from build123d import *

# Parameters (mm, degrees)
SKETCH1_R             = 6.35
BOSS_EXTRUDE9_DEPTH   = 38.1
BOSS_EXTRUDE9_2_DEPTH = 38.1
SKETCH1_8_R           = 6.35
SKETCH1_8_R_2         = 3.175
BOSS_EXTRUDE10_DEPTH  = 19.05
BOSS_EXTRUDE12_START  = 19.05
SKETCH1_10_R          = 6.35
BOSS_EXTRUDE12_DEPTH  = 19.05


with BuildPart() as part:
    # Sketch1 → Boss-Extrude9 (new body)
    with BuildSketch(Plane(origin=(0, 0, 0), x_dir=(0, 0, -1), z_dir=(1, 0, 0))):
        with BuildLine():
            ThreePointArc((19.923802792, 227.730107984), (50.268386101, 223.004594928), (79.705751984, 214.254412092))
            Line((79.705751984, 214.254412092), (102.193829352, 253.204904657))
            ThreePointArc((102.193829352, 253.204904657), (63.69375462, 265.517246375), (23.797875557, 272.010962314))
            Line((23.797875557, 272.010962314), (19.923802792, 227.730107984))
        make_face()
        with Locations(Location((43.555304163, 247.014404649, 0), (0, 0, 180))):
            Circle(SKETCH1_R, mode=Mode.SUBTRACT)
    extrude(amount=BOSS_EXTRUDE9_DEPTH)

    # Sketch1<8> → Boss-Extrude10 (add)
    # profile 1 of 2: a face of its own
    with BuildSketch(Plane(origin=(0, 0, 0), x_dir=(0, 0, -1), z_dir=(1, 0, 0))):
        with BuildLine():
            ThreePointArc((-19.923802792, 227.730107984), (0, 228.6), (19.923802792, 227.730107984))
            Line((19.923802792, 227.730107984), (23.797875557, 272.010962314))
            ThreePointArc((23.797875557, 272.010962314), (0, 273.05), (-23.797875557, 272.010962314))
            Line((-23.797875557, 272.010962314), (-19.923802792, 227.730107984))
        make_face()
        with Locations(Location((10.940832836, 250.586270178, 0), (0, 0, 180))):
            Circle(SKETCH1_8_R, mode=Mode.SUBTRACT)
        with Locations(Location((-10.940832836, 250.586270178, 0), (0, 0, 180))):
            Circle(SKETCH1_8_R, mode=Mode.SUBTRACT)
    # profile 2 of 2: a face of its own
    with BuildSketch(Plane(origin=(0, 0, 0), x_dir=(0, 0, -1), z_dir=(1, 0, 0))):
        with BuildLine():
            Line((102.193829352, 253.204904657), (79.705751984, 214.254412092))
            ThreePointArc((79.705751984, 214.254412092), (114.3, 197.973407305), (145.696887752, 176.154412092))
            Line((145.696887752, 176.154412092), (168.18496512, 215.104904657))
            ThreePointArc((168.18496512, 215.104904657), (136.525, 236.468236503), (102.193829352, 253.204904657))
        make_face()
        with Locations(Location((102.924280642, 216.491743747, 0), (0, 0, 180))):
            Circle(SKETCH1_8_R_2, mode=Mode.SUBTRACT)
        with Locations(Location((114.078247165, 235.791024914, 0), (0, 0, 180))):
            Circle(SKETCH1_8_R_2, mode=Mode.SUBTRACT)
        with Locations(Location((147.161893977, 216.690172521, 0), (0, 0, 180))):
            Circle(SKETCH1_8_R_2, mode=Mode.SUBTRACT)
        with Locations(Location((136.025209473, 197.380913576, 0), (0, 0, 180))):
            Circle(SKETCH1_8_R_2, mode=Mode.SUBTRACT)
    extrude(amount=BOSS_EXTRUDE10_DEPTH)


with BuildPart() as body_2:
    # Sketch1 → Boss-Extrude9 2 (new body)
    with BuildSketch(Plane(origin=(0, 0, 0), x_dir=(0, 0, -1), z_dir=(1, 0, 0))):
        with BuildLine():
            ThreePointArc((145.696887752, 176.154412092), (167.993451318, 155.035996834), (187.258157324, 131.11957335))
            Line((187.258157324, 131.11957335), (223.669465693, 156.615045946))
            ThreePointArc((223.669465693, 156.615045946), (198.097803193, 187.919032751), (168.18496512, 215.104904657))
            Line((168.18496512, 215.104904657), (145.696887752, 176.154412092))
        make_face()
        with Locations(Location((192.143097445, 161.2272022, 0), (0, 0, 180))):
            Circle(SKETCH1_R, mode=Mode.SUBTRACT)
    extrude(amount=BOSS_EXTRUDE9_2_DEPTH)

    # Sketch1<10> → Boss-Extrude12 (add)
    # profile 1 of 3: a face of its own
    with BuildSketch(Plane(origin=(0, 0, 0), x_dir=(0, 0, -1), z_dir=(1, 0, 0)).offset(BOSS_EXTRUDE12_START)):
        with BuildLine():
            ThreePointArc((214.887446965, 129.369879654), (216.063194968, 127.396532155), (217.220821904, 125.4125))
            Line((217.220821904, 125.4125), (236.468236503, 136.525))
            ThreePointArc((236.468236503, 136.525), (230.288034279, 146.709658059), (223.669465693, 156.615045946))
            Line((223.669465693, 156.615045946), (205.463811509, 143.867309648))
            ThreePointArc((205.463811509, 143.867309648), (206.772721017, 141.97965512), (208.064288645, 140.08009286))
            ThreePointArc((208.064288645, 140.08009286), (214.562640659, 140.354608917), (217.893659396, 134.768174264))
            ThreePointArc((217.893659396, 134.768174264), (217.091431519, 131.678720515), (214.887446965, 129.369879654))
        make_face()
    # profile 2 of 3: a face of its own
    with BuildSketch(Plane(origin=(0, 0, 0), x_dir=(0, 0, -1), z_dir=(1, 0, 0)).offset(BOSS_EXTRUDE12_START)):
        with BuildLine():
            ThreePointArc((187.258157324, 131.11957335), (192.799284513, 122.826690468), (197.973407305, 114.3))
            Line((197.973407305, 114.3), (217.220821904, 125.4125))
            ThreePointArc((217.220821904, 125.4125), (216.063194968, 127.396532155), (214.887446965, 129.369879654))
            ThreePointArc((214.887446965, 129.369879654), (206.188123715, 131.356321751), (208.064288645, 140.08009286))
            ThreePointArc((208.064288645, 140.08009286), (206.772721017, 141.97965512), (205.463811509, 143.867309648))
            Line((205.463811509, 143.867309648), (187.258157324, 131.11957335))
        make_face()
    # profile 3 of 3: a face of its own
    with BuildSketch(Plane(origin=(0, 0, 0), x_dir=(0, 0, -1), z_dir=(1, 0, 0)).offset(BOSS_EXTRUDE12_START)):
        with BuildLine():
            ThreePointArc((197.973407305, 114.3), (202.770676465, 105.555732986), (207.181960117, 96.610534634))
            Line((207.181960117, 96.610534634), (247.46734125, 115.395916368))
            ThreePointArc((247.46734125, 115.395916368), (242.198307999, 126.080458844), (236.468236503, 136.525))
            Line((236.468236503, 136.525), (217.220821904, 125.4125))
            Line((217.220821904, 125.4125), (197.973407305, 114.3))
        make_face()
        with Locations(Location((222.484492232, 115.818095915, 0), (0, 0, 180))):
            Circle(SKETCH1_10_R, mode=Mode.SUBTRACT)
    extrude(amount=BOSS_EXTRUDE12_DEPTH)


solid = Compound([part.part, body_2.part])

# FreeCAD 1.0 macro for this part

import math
import FreeCAD as App
import Part
import Sketcher

V = App.Vector
Q = App.Units.Quantity

doc = App.newDocument("Part")
body = doc.addObject("PartDesign::Body", "Body")

# Sketch on YZ plane
sketch1 = body.newObject("Sketcher::SketchObject", "Sketch")
sketch1.AttachmentSupport = (doc.getObject("YZ_Plane"), [""])
sketch1.MapMode = "FlatFace"
sketch1.addGeometry([
    Part.ArcOfCircle(Part.Circle(V(0, 0, 0), V(0, 0, 1), 228.6), math.radians(-20.405932), math.radians(-5)),  # 0
    Part.LineSegment(V(214.254412, -79.705752, 0), V(253.204905, -102.193829, 0)),  # 1
    Part.ArcOfCircle(Part.Circle(V(0, 0, 0), V(0, 0, 1), 273.05), math.radians(-21.979067), math.radians(-5)),  # 2
    Part.LineSegment(V(272.010962, -23.797876, 0), V(227.730108, -19.923803, 0)),  # 3
    Part.Circle(V(247.014405, -43.555304, 0), V(0, 0, 1), 6.35),  # 4
], False)
sketch1.addConstraint([
    Sketcher.Constraint("Coincident", 0, 1, 1, 1),
    Sketcher.Constraint("Coincident", 1, 2, 2, 1),
    Sketcher.Constraint("Coincident", 2, 2, 3, 1),
    Sketcher.Constraint("Coincident", 3, 2, 0, 2),
    Sketcher.Constraint("Coincident", 0, 3, -1, 1),
    Sketcher.Constraint("Coincident", 2, 3, -1, 1),
    Sketcher.Constraint("Radius", 0, Q("9 in")),
    Sketcher.Constraint("Diameter", 4, Q("0.5 in")),
    Sketcher.Constraint("Radius", 2, Q("10.75 in")),
    Sketcher.Constraint("Angle", 1, Q("-30 deg")),
    Sketcher.Constraint("Angle", 3, Q("175 deg")),
    Sketcher.Constraint("DistanceX", 4, 3, 1, 2, Q("6.1905 mm")),
    Sketcher.Constraint("DistanceY", 4, 3, 3, 2, Q("23.631501 mm")),
    Sketcher.Constraint("DistanceY", 0, 1, -1, 1, Q("79.705752 mm")),
    Sketcher.Constraint("DistanceY", 0, 1, 3, 2, Q("59.781949 mm")),
])
pad1 = body.newObject("PartDesign::Pad", "Pad")
pad1.Profile = sketch1
pad1.Length = Q("1.5 in")

# Sketch on YZ plane
sketch2 = body.newObject("Sketcher::SketchObject", "Sketch001")
sketch2.AttachmentSupport = (doc.getObject("YZ_Plane"), [""])
sketch2.MapMode = "FlatFace"
sketch2.addGeometry([
    Part.ArcOfCircle(Part.Circle(V(0, 0, 0), V(0, 0, 1), 228.6), math.radians(-5), math.radians(5)),  # 0
    Part.LineSegment(V(227.730108, -19.923803, 0), V(272.010962, -23.797876, 0)),  # 1
    Part.ArcOfCircle(Part.Circle(V(0, 0, 0), V(0, 0, 1), 273.05), math.radians(-5), math.radians(5)),  # 2
    Part.LineSegment(V(272.010962, 23.797876, 0), V(227.730108, 19.923803, 0)),  # 3
    Part.Circle(V(250.58627, 10.940833, 0), V(0, 0, 1), 6.35),  # 4
    Part.Circle(V(250.58627, -10.940833, 0), V(0, 0, 1), 6.35),  # 5
    Part.LineSegment(V(253.204905, -102.193829, 0), V(214.254412, -79.705752, 0)),  # 6
    Part.ArcOfCircle(Part.Circle(V(0, 0, 0), V(0, 0, 1), 228.6), math.radians(-39.594068), math.radians(-20.405932)),  # 7
    Part.LineSegment(V(176.154412, -145.696888, 0), V(215.104905, -168.184965, 0)),  # 8
    Part.ArcOfCircle(Part.Circle(V(0, 0, 0), V(0, 0, 1), 273.05), math.radians(-38.020933), math.radians(-21.979067)),  # 9
    Part.Circle(V(216.491744, -102.924281, 0), V(0, 0, 1), 3.175),  # 10
    Part.Circle(V(197.380914, -136.025209, 0), V(0, 0, 1), 3.175),  # 11
    Part.Circle(V(235.791025, -114.078247, 0), V(0, 0, 1), 3.175),  # 12
    Part.Circle(V(216.690173, -147.161894, 0), V(0, 0, 1), 3.175),  # 13
], False)
sketch2.addConstraint([
    Sketcher.Constraint("Coincident", 0, 1, 1, 1),
    Sketcher.Constraint("Coincident", 1, 2, 2, 1),
    Sketcher.Constraint("Coincident", 2, 2, 3, 1),
    Sketcher.Constraint("Coincident", 3, 2, 0, 2),
    Sketcher.Constraint("Coincident", 6, 2, 7, 2),
    Sketcher.Constraint("Coincident", 7, 1, 8, 1),
    Sketcher.Constraint("Coincident", 8, 2, 9, 1),
    Sketcher.Constraint("Coincident", 9, 2, 6, 1),
    Sketcher.Constraint("Coincident", 0, 3, -1, 1),
    Sketcher.Constraint("Coincident", 2, 3, -1, 1),
    Sketcher.Constraint("Coincident", 7, 3, -1, 1),
    Sketcher.Constraint("Coincident", 9, 3, -1, 1),
    Sketcher.Constraint("Equal", 4, 5),
    Sketcher.Constraint("Equal", 0, 7),
    Sketcher.Constraint("Equal", 2, 9),
    Sketcher.Constraint("Equal", 10, 11),
    Sketcher.Constraint("Equal", 11, 12),
    Sketcher.Constraint("Equal", 12, 13),
    Sketcher.Constraint("Symmetric", 4, 3, 5, 3, -1),
    Sketcher.Constraint("Parallel", 6, 8),
    Sketcher.Constraint("Vertical", 1, 2, 2, 2),
    Sketcher.Constraint("Vertical", 0, 1, 3, 2),
    Sketcher.Constraint("Equal", 6, 8),
    Sketcher.Constraint("Radius", 0, Q("9 in")),
    Sketcher.Constraint("Diameter", 4, Q("0.5 in")),
    Sketcher.Constraint("Diameter", 10, Q("0.25 in")),
    Sketcher.Constraint("Radius", 2, Q("10.75 in")),
    Sketcher.Constraint("Angle", 1, Q("-5 deg")),
    Sketcher.Constraint("Angle", 6, Q("150 deg")),
    Sketcher.Constraint("DistanceX", 7, 1, 6, 2, Q("1.5 in")),
    Sketcher.Constraint("DistanceX", 8, 2, 10, 3, Q("0.0546 in")),
    Sketcher.Constraint("DistanceX", 11, 3, 6, 2, Q("16.873499 mm")),
    Sketcher.Constraint("DistanceX", -1, 1, 4, 3, Q("250.58627 mm")),
    Sketcher.Constraint("DistanceY", 10, 3, -1, 1, Q("102.924281 mm")),
    Sketcher.Constraint("DistanceY", 11, 3, -1, 1, Q("136.025209 mm")),
    Sketcher.Constraint("DistanceX", 10, 3, 12, 3, Q("19.299281 mm")),
    Sketcher.Constraint("DistanceY", 12, 3, 4, 3, Q("125.01908 mm")),
    Sketcher.Constraint("DistanceX", 11, 3, 13, 3, Q("19.309259 mm")),
    Sketcher.Constraint("DistanceY", 13, 3, 5, 3, Q("136.221061 mm")),
    Sketcher.Constraint("DistanceY", 0, 1, 5, 3, Q("8.98297 mm")),
    Sketcher.Constraint("DistanceY", 1, 2, 4, 3, Q("34.738708 mm")),
])
pad2 = body.newObject("PartDesign::Pad", "Pad001")
pad2.Profile = sketch2
pad2.Length = Q("0.75 in")
body2 = doc.addObject("PartDesign::Body", "Body001")

# Sketch on YZ plane
sketch3 = body2.newObject("Sketcher::SketchObject", "Sketch002")
sketch3.AttachmentSupport = (doc.getObject("YZ_Plane001"), [""])
sketch3.MapMode = "FlatFace"
sketch3.addGeometry([
    Part.ArcOfCircle(Part.Circle(V(0, 0, 0), V(0, 0, 1), 228.6), math.radians(-55), math.radians(-39.594068)),  # 0
    Part.LineSegment(V(131.119573, -187.258157, 0), V(156.615046, -223.669466, 0)),  # 1
    Part.ArcOfCircle(Part.Circle(V(0, 0, 0), V(0, 0, 1), 273.05), math.radians(-55), math.radians(-38.020933)),  # 2
    Part.LineSegment(V(215.104905, -168.184965, 0), V(176.154412, -145.696888, 0)),  # 3
    Part.Circle(V(161.227202, -192.143097, 0), V(0, 0, 1), 6.35),  # 4
], False)
sketch3.addConstraint([
    Sketcher.Constraint("Coincident", 0, 1, 1, 1),
    Sketcher.Constraint("Coincident", 1, 2, 2, 1),
    Sketcher.Constraint("Coincident", 2, 2, 3, 1),
    Sketcher.Constraint("Coincident", 3, 2, 0, 2),
    Sketcher.Constraint("Coincident", 0, 3, -1, 1),
    Sketcher.Constraint("Coincident", 2, 3, -1, 1),
    Sketcher.Constraint("Radius", 0, Q("9 in")),
    Sketcher.Constraint("Diameter", 4, Q("0.5 in")),
    Sketcher.Constraint("Radius", 2, Q("10.75 in")),
    Sketcher.Constraint("Angle", 1, Q("-55 deg")),
    Sketcher.Constraint("Angle", 3, Q("150 deg")),
    Sketcher.Constraint("DistanceY", 1, 2, 2, 2, Q("55.484501 mm")),
    Sketcher.Constraint("DistanceX", 0, 1, 4, 3, Q("30.107629 mm")),
    Sketcher.Constraint("DistanceY", 4, 3, 0, 1, Q("4.88494 mm")),
    Sketcher.Constraint("DistanceX", 4, 3, 3, 2, Q("14.92721 mm")),
])
pad3 = body2.newObject("PartDesign::Pad", "Pad002")
pad3.Profile = sketch3
pad3.Length = Q("1.5 in")

# Sketch on YZ plane
sketch4 = body2.newObject("Sketcher::SketchObject", "Sketch003")
sketch4.AttachmentSupport = (doc.getObject("YZ_Plane001"), [""])
sketch4.MapMode = "FlatFace"
sketch4.AttachmentOffset = App.Placement(V(0, 0, 0.75 * 25.4), App.Rotation())
sketch4.addGeometry([
    Part.ArcOfCircle(Part.Circle(V(0, 0, 0), V(0, 0, 1), 273.05), math.radians(-60), math.radians(-55)),  # 0
    Part.LineSegment(V(156.615046, -223.669466, 0), V(143.86731, -205.463812, 0)),  # 1
    Part.LineSegment(V(143.86731, -205.463812, 0), V(131.119573, -187.258157, 0)),  # 2
    Part.ArcOfCircle(Part.Circle(V(0, 0, 0), V(0, 0, 1), 228.6), math.radians(-60), math.radians(-55)),  # 3
    Part.ArcOfCircle(Part.Circle(V(0, 0, 0), V(0, 0, 1), 228.6), math.radians(-65), math.radians(-60)),  # 4
    Part.LineSegment(V(96.610535, -207.18196, 0), V(115.395916, -247.467341, 0)),  # 5
    Part.ArcOfCircle(Part.Circle(V(0, 0, 0), V(0, 0, 1), 273.05), math.radians(-65), math.radians(-60)),  # 6
    Part.ArcOfCircle(Part.Circle(V(134.768174, -211.543659, 0), V(0, 0, 1), 6.35), math.radians(-90), math.radians(33.225282)),  # 7
    Part.ArcOfCircle(Part.Circle(V(134.768174, -211.543659, 0), V(0, 0, 1), 6.35), math.radians(-148.225282), math.radians(-90)),  # 8
    Part.ArcOfCircle(Part.Circle(V(134.768174, -211.543659, 0), V(0, 0, 1), 6.35), math.radians(33.225282), math.radians(211.774718)),  # 9
    Part.Circle(V(115.818096, -222.484492, 0), V(0, 0, 1), 6.35),  # 10
], False)
sketch4.addConstraint([
    Sketcher.Constraint("Coincident", 0, 2, 1, 1),
    Sketcher.Constraint("Coincident", 1, 2, 2, 1),
    Sketcher.Constraint("Coincident", 2, 2, 3, 2),
    Sketcher.Constraint("Tangent", 3, 1, 4, 2),
    Sketcher.Constraint("Coincident", 4, 1, 5, 1),
    Sketcher.Constraint("Coincident", 5, 2, 6, 1),
    Sketcher.Constraint("Tangent", 6, 2, 0, 1),
    Sketcher.Constraint("Tangent", 7, 1, 8, 2),
    Sketcher.Constraint("Tangent", 8, 1, 9, 2),
    Sketcher.Constraint("Tangent", 9, 1, 7, 2),
    Sketcher.Constraint("Coincident", 0, 3, -1, 1),
    Sketcher.Constraint("Coincident", 3, 3, -1, 1),
    Sketcher.Constraint("Equal", 3, 4),
    Sketcher.Constraint("Equal", 0, 6),
    Sketcher.Constraint("Equal", 9, 10),
    Sketcher.Constraint("Parallel", 1, 2),
    Sketcher.Constraint("Vertical", 9, 3, 7, 1),
    Sketcher.Constraint("Equal", 1, 2),
    Sketcher.Constraint("Radius", 3, Q("9 in")),
    Sketcher.Constraint("Diameter", 10, Q("0.5 in")),
    Sketcher.Constraint("Radius", 0, Q("10.75 in")),
    Sketcher.Constraint("Angle", 1, Q("125 deg")),
    Sketcher.Constraint("Angle", 5, Q("-65 deg")),
    Sketcher.Constraint("DistanceX", -1, 1, 3, 1, Q("4.5 in")),
    Sketcher.Constraint("DistanceX", -1, 1, 6, 2, Q("5.375 in")),
    Sketcher.Constraint("DistanceX", 2, 2, 8, 3, Q("3.648601 mm")),
    Sketcher.Constraint("DistanceY", 7, 3, 4, 1, Q("4.361699 mm")),
    Sketcher.Constraint("DistanceY", 7, 3, -1, 1, Q("211.543659 mm")),
    Sketcher.Constraint("DistanceX", -1, 1, 1, 2, Q("143.86731 mm")),
    Sketcher.Constraint("DistanceX", -1, 1, 8, 1, Q("129.36988 mm")),
    Sketcher.Constraint("DistanceY", 9, 1, -1, 1, Q("208.064289 mm")),
    Sketcher.Constraint("DistanceX", 10, 3, 7, 3, Q("18.950078 mm")),
    Sketcher.Constraint("DistanceY", 10, 3, 4, 3, Q("222.484492 mm")),
])
pad4 = body2.newObject("PartDesign::Pad", "Pad003")
pad4.Profile = sketch4
pad4.Length = Q("0.75 in")

doc.recompute()
